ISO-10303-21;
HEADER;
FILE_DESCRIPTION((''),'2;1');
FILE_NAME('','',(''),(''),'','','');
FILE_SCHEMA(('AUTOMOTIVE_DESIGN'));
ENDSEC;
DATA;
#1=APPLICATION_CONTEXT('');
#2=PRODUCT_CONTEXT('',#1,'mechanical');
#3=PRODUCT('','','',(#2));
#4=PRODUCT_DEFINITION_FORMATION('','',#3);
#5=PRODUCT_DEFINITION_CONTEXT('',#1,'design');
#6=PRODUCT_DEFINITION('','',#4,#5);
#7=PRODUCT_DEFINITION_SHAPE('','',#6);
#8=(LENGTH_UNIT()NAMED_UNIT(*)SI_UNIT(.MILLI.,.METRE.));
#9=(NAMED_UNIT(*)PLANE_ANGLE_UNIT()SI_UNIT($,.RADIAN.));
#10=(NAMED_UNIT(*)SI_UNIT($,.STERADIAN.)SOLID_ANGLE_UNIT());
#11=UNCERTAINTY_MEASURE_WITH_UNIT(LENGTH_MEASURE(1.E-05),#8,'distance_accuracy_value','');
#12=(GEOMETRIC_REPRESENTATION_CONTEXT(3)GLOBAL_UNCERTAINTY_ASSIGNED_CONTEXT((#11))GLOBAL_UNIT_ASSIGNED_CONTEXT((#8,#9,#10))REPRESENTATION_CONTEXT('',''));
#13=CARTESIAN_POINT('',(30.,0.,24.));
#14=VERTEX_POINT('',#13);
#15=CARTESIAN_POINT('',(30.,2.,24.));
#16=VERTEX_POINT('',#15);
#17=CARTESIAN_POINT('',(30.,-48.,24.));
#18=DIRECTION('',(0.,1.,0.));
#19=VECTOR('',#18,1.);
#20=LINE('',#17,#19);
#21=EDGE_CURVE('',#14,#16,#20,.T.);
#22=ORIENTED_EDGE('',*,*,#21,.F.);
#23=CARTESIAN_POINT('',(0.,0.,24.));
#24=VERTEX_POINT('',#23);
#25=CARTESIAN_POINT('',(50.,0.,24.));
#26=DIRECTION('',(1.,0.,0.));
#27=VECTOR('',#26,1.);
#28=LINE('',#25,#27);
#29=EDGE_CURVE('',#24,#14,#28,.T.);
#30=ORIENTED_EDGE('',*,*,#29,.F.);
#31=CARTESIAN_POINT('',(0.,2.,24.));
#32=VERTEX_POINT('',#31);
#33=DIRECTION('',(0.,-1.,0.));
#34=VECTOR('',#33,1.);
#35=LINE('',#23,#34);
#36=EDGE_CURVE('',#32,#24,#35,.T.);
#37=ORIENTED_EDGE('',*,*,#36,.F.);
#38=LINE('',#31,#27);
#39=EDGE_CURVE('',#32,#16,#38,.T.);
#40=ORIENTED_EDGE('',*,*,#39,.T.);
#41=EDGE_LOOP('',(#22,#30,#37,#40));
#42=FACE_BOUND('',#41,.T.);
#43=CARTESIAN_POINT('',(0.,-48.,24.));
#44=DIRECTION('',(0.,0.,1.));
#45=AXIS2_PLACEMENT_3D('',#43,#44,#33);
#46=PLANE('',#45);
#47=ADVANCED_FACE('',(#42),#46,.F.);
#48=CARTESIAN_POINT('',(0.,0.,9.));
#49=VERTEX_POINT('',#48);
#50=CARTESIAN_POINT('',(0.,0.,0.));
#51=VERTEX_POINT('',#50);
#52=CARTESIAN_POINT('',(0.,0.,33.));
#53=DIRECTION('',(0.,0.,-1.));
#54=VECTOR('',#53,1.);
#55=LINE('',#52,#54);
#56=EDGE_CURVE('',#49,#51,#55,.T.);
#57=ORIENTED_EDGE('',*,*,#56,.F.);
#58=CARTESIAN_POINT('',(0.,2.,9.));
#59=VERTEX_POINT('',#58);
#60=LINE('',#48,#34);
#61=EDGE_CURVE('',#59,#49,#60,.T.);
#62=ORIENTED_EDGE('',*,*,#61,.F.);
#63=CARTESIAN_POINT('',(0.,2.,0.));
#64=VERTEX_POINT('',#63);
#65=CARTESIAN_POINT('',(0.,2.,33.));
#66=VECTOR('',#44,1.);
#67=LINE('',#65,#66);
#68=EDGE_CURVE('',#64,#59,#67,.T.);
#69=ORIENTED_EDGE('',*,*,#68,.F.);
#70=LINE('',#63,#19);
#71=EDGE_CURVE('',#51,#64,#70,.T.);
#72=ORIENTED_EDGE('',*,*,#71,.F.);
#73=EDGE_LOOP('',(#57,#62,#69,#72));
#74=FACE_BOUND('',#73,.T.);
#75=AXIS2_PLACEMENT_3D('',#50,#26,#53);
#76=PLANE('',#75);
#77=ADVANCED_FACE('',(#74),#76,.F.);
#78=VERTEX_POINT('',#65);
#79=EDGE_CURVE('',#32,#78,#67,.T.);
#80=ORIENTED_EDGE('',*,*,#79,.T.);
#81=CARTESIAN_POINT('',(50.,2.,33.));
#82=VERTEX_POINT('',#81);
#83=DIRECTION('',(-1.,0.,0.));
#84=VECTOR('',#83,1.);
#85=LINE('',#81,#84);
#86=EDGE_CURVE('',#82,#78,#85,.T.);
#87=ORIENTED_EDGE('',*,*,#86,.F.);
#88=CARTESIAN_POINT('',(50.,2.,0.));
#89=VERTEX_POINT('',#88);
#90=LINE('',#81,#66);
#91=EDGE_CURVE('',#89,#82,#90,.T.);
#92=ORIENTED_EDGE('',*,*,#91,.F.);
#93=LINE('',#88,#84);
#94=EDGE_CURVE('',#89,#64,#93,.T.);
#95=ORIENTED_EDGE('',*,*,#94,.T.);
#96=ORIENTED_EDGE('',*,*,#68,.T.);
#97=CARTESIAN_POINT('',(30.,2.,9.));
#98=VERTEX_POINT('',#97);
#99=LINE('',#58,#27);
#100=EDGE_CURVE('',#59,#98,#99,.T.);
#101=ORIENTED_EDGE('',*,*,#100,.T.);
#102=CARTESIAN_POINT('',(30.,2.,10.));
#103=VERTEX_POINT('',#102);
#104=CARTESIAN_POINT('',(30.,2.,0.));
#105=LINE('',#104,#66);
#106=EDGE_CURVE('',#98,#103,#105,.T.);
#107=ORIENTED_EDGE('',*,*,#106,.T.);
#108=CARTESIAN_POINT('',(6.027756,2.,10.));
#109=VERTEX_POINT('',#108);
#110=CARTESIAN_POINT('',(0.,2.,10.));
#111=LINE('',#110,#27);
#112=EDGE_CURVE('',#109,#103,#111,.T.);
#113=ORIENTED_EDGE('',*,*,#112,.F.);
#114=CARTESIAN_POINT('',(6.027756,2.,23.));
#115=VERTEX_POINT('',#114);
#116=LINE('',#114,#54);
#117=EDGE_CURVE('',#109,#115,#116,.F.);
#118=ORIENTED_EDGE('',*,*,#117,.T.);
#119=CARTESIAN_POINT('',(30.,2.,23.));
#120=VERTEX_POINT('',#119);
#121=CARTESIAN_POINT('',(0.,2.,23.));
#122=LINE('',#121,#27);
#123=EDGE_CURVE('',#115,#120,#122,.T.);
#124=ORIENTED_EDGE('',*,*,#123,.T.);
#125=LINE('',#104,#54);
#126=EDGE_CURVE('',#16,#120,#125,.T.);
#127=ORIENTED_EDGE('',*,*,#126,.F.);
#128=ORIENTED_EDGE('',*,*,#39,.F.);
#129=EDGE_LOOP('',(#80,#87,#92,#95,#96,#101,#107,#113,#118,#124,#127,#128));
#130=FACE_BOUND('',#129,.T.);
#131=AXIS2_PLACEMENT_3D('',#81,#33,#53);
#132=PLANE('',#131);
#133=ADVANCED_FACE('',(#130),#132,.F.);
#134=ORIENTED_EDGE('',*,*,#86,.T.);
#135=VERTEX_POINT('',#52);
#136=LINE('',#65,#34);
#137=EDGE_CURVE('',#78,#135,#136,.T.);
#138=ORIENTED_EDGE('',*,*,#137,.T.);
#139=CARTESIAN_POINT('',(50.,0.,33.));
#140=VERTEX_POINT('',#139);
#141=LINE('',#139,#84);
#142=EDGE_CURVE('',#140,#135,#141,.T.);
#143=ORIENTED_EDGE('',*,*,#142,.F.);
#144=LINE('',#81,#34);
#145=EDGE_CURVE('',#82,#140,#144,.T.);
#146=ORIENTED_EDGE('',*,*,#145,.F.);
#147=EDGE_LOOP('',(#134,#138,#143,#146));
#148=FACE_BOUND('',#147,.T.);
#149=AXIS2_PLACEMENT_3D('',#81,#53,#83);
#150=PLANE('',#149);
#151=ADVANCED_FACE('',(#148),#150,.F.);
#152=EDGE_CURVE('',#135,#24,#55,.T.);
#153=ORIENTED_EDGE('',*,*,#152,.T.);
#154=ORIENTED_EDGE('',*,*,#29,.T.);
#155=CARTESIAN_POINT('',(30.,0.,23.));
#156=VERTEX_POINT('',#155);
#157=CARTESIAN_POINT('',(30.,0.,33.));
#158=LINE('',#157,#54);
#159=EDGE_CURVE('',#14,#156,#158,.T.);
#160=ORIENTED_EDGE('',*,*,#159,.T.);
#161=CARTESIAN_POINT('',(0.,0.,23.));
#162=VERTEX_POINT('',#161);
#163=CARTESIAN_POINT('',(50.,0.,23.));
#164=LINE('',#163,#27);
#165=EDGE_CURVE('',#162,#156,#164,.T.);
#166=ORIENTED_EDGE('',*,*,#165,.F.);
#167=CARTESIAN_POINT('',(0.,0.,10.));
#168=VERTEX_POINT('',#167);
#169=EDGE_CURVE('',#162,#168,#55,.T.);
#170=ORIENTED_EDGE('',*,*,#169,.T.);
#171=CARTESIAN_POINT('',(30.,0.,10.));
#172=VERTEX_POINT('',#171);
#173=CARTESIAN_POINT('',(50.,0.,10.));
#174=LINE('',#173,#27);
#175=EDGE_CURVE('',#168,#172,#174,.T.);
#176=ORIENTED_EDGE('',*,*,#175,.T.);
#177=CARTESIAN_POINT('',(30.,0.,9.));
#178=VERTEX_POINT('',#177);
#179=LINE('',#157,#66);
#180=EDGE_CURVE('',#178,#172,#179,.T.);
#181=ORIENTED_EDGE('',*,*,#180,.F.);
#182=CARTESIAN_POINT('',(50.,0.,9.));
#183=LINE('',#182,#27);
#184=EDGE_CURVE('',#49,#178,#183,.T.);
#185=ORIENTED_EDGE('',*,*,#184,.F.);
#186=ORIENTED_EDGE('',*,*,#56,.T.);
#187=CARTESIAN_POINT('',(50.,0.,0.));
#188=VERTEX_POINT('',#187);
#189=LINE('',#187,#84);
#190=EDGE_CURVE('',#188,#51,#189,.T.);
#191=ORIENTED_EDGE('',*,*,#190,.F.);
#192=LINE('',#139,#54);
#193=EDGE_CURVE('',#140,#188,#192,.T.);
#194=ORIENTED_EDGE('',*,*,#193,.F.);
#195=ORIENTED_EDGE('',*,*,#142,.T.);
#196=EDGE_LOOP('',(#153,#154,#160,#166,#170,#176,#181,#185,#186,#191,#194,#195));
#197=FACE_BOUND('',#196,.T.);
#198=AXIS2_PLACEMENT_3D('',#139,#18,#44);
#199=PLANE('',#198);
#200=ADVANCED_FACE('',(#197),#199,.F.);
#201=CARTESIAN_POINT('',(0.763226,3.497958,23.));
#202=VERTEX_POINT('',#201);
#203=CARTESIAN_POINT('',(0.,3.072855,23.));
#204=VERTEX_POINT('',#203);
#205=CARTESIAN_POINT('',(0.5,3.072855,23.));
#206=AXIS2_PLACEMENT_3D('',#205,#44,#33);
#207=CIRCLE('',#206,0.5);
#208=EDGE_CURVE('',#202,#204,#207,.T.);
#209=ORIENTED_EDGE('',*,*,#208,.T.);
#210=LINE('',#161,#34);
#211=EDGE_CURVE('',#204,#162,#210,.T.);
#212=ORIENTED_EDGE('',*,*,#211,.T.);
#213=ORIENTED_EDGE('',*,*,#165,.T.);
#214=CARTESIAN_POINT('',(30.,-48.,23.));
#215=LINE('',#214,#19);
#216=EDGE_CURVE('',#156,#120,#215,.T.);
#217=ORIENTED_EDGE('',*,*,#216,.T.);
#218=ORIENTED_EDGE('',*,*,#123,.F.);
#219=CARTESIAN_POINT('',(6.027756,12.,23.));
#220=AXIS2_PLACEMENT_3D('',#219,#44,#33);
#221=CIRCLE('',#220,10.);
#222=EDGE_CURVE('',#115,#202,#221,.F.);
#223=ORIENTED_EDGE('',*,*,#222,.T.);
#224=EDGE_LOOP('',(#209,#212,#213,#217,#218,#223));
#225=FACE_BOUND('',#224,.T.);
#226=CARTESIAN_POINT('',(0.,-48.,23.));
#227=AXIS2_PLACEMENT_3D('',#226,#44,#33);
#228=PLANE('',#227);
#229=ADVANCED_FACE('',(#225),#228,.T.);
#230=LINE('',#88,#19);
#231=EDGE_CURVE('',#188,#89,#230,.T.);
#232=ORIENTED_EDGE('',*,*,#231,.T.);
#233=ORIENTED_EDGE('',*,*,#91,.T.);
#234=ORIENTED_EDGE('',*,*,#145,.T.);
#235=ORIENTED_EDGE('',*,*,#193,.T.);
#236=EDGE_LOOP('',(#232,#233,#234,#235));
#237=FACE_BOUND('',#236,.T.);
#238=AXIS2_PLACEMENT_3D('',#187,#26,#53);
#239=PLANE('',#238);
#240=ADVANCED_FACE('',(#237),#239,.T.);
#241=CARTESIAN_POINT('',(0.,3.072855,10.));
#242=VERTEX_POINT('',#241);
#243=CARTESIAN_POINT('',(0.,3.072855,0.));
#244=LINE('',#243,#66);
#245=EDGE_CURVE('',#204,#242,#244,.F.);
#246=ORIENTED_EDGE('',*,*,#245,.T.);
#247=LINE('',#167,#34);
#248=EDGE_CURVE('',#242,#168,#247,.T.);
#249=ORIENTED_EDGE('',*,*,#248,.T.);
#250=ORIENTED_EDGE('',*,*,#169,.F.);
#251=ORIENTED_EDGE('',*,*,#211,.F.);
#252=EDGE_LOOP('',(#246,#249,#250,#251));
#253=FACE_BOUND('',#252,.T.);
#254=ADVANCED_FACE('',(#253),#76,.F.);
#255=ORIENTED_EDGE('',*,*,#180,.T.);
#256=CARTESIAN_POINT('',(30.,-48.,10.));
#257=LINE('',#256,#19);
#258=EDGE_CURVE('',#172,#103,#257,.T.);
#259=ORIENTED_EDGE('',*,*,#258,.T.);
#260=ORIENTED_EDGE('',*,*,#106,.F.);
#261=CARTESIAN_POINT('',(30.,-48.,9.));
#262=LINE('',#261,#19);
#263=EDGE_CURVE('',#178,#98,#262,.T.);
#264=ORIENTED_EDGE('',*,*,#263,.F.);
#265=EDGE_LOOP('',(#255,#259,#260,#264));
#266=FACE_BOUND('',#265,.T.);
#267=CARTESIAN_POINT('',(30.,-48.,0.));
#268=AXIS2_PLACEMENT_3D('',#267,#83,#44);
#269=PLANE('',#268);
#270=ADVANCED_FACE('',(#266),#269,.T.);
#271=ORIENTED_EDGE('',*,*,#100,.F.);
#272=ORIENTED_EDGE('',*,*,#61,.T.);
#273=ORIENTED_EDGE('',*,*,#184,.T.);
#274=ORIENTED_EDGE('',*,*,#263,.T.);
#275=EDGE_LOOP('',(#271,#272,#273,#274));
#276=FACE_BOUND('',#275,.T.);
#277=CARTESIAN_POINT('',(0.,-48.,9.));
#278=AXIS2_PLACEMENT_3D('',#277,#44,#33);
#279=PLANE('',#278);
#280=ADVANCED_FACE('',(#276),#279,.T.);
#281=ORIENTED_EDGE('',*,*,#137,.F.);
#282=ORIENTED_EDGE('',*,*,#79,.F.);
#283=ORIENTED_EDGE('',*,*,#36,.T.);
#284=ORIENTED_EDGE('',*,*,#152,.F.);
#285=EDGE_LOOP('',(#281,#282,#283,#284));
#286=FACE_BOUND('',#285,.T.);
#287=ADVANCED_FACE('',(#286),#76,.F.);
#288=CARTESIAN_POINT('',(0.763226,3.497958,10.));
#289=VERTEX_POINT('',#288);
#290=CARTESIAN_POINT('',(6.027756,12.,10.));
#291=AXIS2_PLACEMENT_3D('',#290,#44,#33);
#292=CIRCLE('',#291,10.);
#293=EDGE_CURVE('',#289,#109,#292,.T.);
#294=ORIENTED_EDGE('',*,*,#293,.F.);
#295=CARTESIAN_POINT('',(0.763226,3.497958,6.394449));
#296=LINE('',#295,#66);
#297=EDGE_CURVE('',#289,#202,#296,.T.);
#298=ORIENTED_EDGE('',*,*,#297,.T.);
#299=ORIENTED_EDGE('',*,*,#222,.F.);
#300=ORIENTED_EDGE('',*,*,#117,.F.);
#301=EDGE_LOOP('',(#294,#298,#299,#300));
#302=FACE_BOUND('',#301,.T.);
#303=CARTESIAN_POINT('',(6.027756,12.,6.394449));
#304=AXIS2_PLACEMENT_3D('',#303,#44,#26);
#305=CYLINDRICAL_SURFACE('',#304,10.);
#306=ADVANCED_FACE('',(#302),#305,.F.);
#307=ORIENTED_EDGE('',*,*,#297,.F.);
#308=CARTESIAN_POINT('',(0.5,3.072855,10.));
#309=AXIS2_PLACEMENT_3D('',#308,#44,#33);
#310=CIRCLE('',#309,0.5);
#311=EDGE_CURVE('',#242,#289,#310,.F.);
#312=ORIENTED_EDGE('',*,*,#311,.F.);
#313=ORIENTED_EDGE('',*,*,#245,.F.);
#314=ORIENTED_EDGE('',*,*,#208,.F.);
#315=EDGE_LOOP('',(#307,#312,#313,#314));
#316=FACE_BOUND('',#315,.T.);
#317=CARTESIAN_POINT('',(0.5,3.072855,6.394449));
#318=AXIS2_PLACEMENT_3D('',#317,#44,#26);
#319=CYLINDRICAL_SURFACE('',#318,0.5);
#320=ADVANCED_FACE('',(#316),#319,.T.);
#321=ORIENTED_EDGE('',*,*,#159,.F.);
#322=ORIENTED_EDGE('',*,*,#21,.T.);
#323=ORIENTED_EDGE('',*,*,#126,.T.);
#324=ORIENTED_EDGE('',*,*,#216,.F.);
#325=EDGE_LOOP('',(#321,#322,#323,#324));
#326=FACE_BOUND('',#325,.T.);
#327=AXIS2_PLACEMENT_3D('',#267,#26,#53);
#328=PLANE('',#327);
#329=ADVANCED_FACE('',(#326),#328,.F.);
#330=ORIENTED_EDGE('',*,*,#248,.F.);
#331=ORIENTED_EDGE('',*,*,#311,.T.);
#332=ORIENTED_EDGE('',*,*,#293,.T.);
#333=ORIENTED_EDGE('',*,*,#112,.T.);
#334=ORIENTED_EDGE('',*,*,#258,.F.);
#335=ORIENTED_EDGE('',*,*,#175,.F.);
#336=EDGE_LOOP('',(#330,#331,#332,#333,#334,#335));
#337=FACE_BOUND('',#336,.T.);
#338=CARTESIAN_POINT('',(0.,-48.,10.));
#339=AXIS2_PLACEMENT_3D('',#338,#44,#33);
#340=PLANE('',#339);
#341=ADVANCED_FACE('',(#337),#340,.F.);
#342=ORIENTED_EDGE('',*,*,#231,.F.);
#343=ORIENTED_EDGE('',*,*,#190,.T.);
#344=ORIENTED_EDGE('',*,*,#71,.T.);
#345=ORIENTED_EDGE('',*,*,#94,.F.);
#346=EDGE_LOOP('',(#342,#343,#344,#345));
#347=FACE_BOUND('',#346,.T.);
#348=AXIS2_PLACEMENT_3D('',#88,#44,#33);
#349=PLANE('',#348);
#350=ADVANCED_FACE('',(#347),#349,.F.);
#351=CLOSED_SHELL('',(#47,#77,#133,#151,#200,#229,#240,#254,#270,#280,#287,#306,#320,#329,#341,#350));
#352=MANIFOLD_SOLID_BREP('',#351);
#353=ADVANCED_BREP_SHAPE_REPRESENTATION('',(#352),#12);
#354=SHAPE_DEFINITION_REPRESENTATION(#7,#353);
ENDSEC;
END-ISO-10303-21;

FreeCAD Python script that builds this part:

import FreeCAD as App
import Part
import Sketcher
Q = App.Units.Quantity


def edges_at(feature, points):
    """Names of the edges that pass closest to the given points."""
    edges = feature.Shape.Edges
    near = lambda p: min(range(len(edges)), key=lambda i: edges[i].distToShape(Part.Vertex(*p))[0])
    return sorted({f"Edge{near(p) + 1}" for p in points})


def add_polygon(sketch, points):
    """Adds a closed chain of lines whose ends are joined by coincident constraints."""
    first, n = sketch.GeometryCount, len(points)
    for a, b in zip(points, points[1:] + points[:1]):
        sketch.addGeometry(Part.LineSegment(App.Vector(*a, 0), App.Vector(*b, 0)), False)
    for i in range(n):
        sketch.addConstraint(Sketcher.Constraint("Coincident", first + i, 2, first + (i + 1) % n, 1))

doc = App.newDocument("Part")
params = doc.addObject("Spreadsheet::Sheet", "Params")
for row, (alias, value) in enumerate([
    ("sketch1_width", "2 mm"),
    ("sketch1_height", "33 mm"),
    ("pad1_length", "50 mm"),
    ("sketch2_width", "30 mm"),
    ("sketch2_height", "1 mm"),
    ("pocket1_length", "50 mm"),
    ("sketch3_width", "3 mm"),
    ("sketch3_height", "13 mm"),
    ("pad2_length", "2 mm"),
    ("sketch4_width", "3 mm"),
    ("sketch4_height", "2 mm"),
    ("pocket2_length", "13 mm"),
    ("fillet_radius", "10 mm"),
    ("fillet2_radius", "0.5 mm"),
], start=1):
    params.set(f"A{row}", alias)
    params.set(f"B{row}", "=" + value)
    params.setAlias(f"B{row}", alias)

body = doc.addObject("PartDesign::Body", "Body")

sketch1 = body.newObject("Sketcher::SketchObject", "Sketch")
sketch1.AttachmentSupport = (doc.getObject("YZ_Plane"), [""])
sketch1.MapMode = "FlatFace"
add_polygon(sketch1, [(2, 33), (0, 33), (0, 0), (2, 0)])
sketch1.addConstraint(Sketcher.Constraint("Horizontal", 0))
sketch1.addConstraint(Sketcher.Constraint("Vertical", 1))
sketch1.addConstraint(Sketcher.Constraint("Horizontal", 2))
sketch1.addConstraint(Sketcher.Constraint("Vertical", 3))
sketch1.addConstraint(Sketcher.Constraint("Coincident", 1, 2, -1, 1))
sketch1.addConstraint(Sketcher.Constraint("DistanceX", 0, 2, 0, 1, Q("2 mm")))
sketch1.addConstraint(Sketcher.Constraint("DistanceY", 1, 2, 1, 1, Q("33 mm")))
sketch1.setExpression("Constraints[9]", "Params.sketch1_width")
sketch1.setExpression("Constraints[10]", "Params.sketch1_height")
pad1 = body.newObject("PartDesign::Pad", "Pad")
pad1.Profile = sketch1
pad1.setExpression("Length", "Params.pad1_length")

sketch2 = body.newObject("Sketcher::SketchObject", "Sketch001")
sketch2.AttachmentSupport = (doc.getObject("XZ_Plane"), [""])
sketch2.MapMode = "FlatFace"
sketch2.AttachmentOffset = App.Placement(App.Vector(0, 0, -2), App.Rotation())
add_polygon(sketch2, [(0, 9), (0, 10), (30, 10), (30, 9)])
add_polygon(sketch2, [(0, 23), (0, 24), (30, 24), (30, 23)])
sketch2.addConstraint(Sketcher.Constraint("Vertical", 0))
sketch2.addConstraint(Sketcher.Constraint("Horizontal", 1))
sketch2.addConstraint(Sketcher.Constraint("Vertical", 2))
sketch2.addConstraint(Sketcher.Constraint("Horizontal", 3))
sketch2.addConstraint(Sketcher.Constraint("Vertical", 4))
sketch2.addConstraint(Sketcher.Constraint("Horizontal", 5))
sketch2.addConstraint(Sketcher.Constraint("Vertical", 6))
sketch2.addConstraint(Sketcher.Constraint("Horizontal", 7))
sketch2.addConstraint(Sketcher.Constraint("PointOnObject", 0, 2, -2))
sketch2.addConstraint(Sketcher.Constraint("PointOnObject", 4, 2, -2))
sketch2.addConstraint(Sketcher.Constraint("Vertical", 2, 2, 5, 2))
sketch2.addConstraint(Sketcher.Constraint("Equal", 2, 4))
sketch2.addConstraint(Sketcher.Constraint("DistanceX", 1, 1, 1, 2, Q("30 mm")))
sketch2.addConstraint(Sketcher.Constraint("DistanceY", 0, 1, 0, 2, Q("1 mm")))
sketch2.addConstraint(Sketcher.Constraint("DistanceY", -1, 1, 0, 2, Q("10 mm")))
sketch2.addConstraint(Sketcher.Constraint("DistanceY", -1, 1, 4, 2, Q("24 mm")))
sketch2.setExpression("Constraints[20]", "Params.sketch2_width")
sketch2.setExpression("Constraints[21]", "Params.sketch2_height")
pocket1 = body.newObject("PartDesign::Pocket", "Pocket")
pocket1.Profile = sketch2
pocket1.setExpression("Length", "Params.pocket1_length")
pocket1.Reversed = True

sketch3 = body.newObject("Sketcher::SketchObject", "Sketch002")
sketch3.AttachmentSupport = (doc.getObject("XZ_Plane"), [""])
sketch3.MapMode = "FlatFace"
sketch3.AttachmentOffset = App.Placement(App.Vector(0, 0, -2), App.Rotation())
add_polygon(sketch3, [(0, 10), (0, 23), (3, 23), (3, 10)])
sketch3.addConstraint(Sketcher.Constraint("Vertical", 0))
sketch3.addConstraint(Sketcher.Constraint("Horizontal", 1))
sketch3.addConstraint(Sketcher.Constraint("Vertical", 2))
sketch3.addConstraint(Sketcher.Constraint("Horizontal", 3))
sketch3.addConstraint(Sketcher.Constraint("PointOnObject", 0, 2, -2))
sketch3.addConstraint(Sketcher.Constraint("DistanceX", 1, 1, 1, 2, Q("3 mm")))
sketch3.addConstraint(Sketcher.Constraint("DistanceY", 0, 1, 0, 2, Q("13 mm")))
sketch3.addConstraint(Sketcher.Constraint("DistanceY", -1, 1, 0, 2, Q("23 mm")))
sketch3.setExpression("Constraints[9]", "Params.sketch3_width")
sketch3.setExpression("Constraints[10]", "Params.sketch3_height")
pad2 = body.newObject("PartDesign::Pad", "Pad001")
pad2.Profile = sketch3
pad2.setExpression("Length", "Params.pad2_length")
pad2.Reversed = True

sketch4 = body.newObject("Sketcher::SketchObject", "Sketch003")
sketch4.AttachmentSupport = (doc.getObject("XY_Plane"), [""])
sketch4.MapMode = "FlatFace"
sketch4.AttachmentOffset = App.Placement(App.Vector(0, 0, 23), App.Rotation())
add_polygon(sketch4, [(0, 4), (3, 2), (3, 4)])
sketch4.addConstraint(Sketcher.Constraint("Vertical", 1))
sketch4.addConstraint(Sketcher.Constraint("Horizontal", 2))
sketch4.addConstraint(Sketcher.Constraint("PointOnObject", 2, 2, -2))
sketch4.addConstraint(Sketcher.Constraint("DistanceX", 2, 2, 2, 1, Q("3 mm")))
sketch4.addConstraint(Sketcher.Constraint("DistanceY", 1, 1, 1, 2, Q("2 mm")))
sketch4.addConstraint(Sketcher.Constraint("DistanceY", -1, 1, 0, 2, Q("2 mm")))
sketch4.setExpression("Constraints[6]", "Params.sketch4_width")
sketch4.setExpression("Constraints[7]", "Params.sketch4_height")
pocket2 = body.newObject("PartDesign::Pocket", "Pocket001")
pocket2.Profile = sketch4
pocket2.setExpression("Length", "Params.pocket2_length")
doc.recompute()

fillet = body.newObject("PartDesign::Fillet", "Fillet")
fillet.Base = (pocket2, edges_at(pocket2, [(3, 2, 16.5)]))
fillet.setExpression("Radius", "Params.fillet_radius")
doc.recompute()

fillet2 = body.newObject("PartDesign::Fillet", "Fillet001")
fillet2.Base = (fillet, edges_at(fillet, [(0, 4, 16.5)]))
fillet2.setExpression("Radius", "Params.fillet2_radius")

doc.recompute()
